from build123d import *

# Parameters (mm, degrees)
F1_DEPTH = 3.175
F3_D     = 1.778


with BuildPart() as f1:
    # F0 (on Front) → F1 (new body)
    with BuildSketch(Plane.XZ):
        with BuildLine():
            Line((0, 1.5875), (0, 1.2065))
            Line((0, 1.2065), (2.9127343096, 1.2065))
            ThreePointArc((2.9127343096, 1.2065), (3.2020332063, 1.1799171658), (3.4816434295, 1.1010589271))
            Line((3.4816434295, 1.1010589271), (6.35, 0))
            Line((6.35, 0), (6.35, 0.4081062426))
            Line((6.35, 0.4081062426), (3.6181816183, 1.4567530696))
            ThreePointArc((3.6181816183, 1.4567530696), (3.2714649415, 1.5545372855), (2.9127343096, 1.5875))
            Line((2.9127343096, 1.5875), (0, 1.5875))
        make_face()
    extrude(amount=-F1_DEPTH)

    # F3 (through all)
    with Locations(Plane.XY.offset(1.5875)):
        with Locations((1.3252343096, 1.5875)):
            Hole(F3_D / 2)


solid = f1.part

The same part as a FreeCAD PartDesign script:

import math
import FreeCAD as App
import Part
import Sketcher
from FreeCAD import Vector
Q = App.Units.Quantity

doc = App.newDocument("Part")
params = doc.addObject("Spreadsheet::Sheet", "Params")
for row, (alias, value) in enumerate([
    ("sketch1_radius", "0.0625 in"),
    ("pad1_length", "0.125 in"),
    ("sketch2_diameter", "0.07 in"),
    ("hole_diameter", "0.07 in"),
], start=1):
    params.set(f"A{row}", alias)
    params.set(f"B{row}", "=" + value)
    params.setAlias(f"B{row}", alias)

body = doc.addObject("PartDesign::Body", "Body")

sketch1 = body.newObject("Sketcher::SketchObject", "Sketch")
sketch1.AttachmentSupport = (doc.getObject("XZ_Plane"), [""])
sketch1.MapMode = "FlatFace"
sketch1.addGeometry(Part.LineSegment(Vector(0, 1.5875, 0), Vector(0, 1.2065, 0)), False)
sketch1.addGeometry(Part.LineSegment(Vector(0, 1.2065, 0), Vector(2.912734, 1.2065, 0)), False)
sketch1.addGeometry(Part.ArcOfCircle(Part.Circle(Vector(2.912734, -0.381, 0), Vector(0, 0, 1), 1.5875), math.radians(69), math.radians(90)), False)
sketch1.addGeometry(Part.LineSegment(Vector(3.481643, 1.101059, 0), Vector(6.35, 0, 0)), False)
sketch1.addGeometry(Part.LineSegment(Vector(6.35, 0, 0), Vector(6.35, 0.408106, 0)), False)
sketch1.addGeometry(Part.LineSegment(Vector(6.35, 0.408106, 0), Vector(3.618182, 1.456753, 0)), False)
sketch1.addGeometry(Part.ArcOfCircle(Part.Circle(Vector(2.912734, -0.381, 0), Vector(0, 0, 1), 1.9685), math.radians(69), math.radians(90)), False)
sketch1.addGeometry(Part.LineSegment(Vector(2.912734, 1.5875, 0), Vector(0, 1.5875, 0)), False)
sketch1.addConstraint(Sketcher.Constraint("Coincident", 0, 2, 1, 1))
sketch1.addConstraint(Sketcher.Constraint("Tangent", 1, 2, 2, 2))
sketch1.addConstraint(Sketcher.Constraint("Tangent", 2, 1, 3, 1))
sketch1.addConstraint(Sketcher.Constraint("Coincident", 3, 2, 4, 1))
sketch1.addConstraint(Sketcher.Constraint("Coincident", 4, 2, 5, 1))
sketch1.addConstraint(Sketcher.Constraint("Tangent", 5, 2, 6, 1))
sketch1.addConstraint(Sketcher.Constraint("Tangent", 6, 2, 7, 1))
sketch1.addConstraint(Sketcher.Constraint("Coincident", 7, 2, 0, 1))
sketch1.addConstraint(Sketcher.Constraint("Vertical", 0))
sketch1.addConstraint(Sketcher.Constraint("Horizontal", 1))
sketch1.addConstraint(Sketcher.Constraint("Vertical", 4))
sketch1.addConstraint(Sketcher.Constraint("Horizontal", 7))
sketch1.addConstraint(Sketcher.Constraint("Coincident", 6, 3, 2, 3))
sketch1.addConstraint(Sketcher.Constraint("PointOnObject", 0, 2, -2))
sketch1.addConstraint(Sketcher.Constraint("PointOnObject", 3, 2, -1))
sketch1.addConstraint(Sketcher.Constraint("Parallel", 3, 5))
sketch1.addConstraint(Sketcher.Constraint("Angle", 3, Q("-21 deg")))
sketch1.addConstraint(Sketcher.Constraint("Radius", 2, Q("0.0625 in")))
sketch1.addConstraint(Sketcher.Constraint("Radius", 6, Q("0.0775 in")))
sketch1.addConstraint(Sketcher.Constraint("DistanceX", -1, 1, 3, 2, Q("0.25 in")))
sketch1.addConstraint(Sketcher.Constraint("DistanceY", 2, 3, -1, 1, Q("0.015 in")))
sketch1.setExpression("Constraints[17]", "Params.sketch1_radius")
pad1 = body.newObject("PartDesign::Pad", "Pad")
pad1.Profile = sketch1
pad1.setExpression("Length", "Params.pad1_length")
pad1.Reversed = True

sketch2 = body.newObject("Sketcher::SketchObject", "Sketch001")
sketch2.AttachmentSupport = (doc.getObject("XY_Plane"), [""])
sketch2.MapMode = "FlatFace"
sketch2.AttachmentOffset = App.Placement(Vector(0, 0, 0.0625 * 25.4), App.Rotation())
sketch2.addGeometry(Part.Circle(Vector(1.325234, 1.5875, 0), Vector(0, 0, 1), 0.889), False)
sketch2.addConstraint(Sketcher.Constraint("Diameter", 0, Q("0.07 in")))
sketch2.addConstraint(Sketcher.Constraint("DistanceY", -1, 1, 0, 3, Q("0.0625 in")))
sketch2.addConstraint(Sketcher.Constraint("DistanceX", -1, 1, 0, 3, 1.325234))
sketch2.setExpression("Constraints[0]", "Params.sketch2_diameter")
doc.recompute()
hole = body.newObject("PartDesign::Hole", "Hole")
hole.Profile = sketch2
hole.ThreadType = "None"
hole.setExpression("Diameter", "Params.hole_diameter")
hole.DepthType = "ThroughAll"

doc.recompute()
